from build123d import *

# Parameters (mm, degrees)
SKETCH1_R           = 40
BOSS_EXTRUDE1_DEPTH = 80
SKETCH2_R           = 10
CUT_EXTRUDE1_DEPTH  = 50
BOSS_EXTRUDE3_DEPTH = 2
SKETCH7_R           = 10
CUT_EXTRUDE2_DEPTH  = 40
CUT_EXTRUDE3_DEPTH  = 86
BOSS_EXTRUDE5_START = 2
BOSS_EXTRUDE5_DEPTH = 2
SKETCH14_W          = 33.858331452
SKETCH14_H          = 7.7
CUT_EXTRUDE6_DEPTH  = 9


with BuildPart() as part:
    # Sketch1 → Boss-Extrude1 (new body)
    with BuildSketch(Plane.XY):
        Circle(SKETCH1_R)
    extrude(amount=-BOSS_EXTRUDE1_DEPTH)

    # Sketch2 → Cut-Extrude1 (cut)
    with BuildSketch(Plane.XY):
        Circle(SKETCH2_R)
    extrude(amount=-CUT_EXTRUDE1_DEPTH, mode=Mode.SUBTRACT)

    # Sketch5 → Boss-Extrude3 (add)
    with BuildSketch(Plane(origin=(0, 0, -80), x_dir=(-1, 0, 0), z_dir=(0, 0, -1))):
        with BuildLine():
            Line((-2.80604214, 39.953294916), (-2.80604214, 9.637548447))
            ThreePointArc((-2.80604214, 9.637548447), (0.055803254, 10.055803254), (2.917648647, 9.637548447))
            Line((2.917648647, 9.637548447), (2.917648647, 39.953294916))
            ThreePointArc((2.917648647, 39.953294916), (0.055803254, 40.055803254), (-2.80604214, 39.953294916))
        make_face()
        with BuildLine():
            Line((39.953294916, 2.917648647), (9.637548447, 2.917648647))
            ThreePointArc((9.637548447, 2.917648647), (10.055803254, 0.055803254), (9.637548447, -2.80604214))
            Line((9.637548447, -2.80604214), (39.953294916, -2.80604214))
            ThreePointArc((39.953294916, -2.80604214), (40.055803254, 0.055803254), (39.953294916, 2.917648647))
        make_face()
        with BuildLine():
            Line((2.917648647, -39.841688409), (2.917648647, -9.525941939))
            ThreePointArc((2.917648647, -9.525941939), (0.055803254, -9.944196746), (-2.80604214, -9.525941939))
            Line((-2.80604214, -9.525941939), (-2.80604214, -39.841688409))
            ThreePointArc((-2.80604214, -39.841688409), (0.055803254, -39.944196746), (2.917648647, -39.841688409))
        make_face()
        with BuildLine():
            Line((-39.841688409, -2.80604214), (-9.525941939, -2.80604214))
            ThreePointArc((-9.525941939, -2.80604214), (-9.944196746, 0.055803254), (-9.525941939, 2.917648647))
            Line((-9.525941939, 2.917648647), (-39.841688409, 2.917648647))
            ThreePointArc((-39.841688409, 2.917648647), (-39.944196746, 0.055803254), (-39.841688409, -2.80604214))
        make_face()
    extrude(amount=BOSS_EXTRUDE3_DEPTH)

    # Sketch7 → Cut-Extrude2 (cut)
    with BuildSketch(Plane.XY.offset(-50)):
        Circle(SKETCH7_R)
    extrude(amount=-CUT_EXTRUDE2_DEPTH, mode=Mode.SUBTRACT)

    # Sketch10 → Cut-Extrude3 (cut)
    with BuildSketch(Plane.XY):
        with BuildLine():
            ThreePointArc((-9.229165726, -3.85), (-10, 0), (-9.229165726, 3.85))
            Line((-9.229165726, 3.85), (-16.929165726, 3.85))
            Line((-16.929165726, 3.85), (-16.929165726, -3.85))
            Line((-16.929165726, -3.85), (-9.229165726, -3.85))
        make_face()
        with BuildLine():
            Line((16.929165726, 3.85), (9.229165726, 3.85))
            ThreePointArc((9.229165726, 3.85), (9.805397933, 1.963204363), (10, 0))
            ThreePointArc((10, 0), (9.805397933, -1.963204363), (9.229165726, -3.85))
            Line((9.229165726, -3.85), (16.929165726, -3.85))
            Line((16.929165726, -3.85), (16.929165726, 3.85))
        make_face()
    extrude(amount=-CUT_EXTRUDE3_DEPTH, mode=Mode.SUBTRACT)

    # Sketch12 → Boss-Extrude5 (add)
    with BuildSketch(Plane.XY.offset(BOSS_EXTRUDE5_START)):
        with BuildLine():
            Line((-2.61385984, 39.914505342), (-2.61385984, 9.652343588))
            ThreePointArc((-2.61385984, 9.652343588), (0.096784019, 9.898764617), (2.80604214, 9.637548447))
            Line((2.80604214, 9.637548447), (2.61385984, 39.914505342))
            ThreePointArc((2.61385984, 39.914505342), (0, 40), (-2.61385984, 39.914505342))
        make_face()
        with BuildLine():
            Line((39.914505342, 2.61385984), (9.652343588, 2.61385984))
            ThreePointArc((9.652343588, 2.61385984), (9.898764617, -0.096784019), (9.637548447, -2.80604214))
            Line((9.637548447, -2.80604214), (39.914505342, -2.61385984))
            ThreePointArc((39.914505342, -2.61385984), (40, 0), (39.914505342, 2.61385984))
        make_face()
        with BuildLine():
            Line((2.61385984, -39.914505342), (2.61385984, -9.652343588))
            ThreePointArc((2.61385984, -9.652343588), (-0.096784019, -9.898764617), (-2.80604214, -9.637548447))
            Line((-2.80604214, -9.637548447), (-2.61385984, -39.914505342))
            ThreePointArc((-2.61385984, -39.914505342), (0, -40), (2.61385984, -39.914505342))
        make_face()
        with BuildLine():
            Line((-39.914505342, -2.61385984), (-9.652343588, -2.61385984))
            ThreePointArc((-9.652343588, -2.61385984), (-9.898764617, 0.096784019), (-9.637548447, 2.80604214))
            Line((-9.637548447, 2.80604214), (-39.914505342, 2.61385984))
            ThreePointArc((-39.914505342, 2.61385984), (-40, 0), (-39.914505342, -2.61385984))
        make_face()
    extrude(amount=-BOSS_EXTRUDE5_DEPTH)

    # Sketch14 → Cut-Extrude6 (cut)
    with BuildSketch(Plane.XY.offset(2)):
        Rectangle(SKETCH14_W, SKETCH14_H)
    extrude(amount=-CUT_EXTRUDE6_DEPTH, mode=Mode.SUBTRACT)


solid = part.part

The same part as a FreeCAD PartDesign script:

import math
import FreeCAD as App
import Part
import Sketcher
from FreeCAD import Vector
Q = App.Units.Quantity


def add_polygon(sketch, points):
    """Adds a closed chain of lines whose ends are joined by coincident constraints."""
    first, n = sketch.GeometryCount, len(points)
    for a, b in zip(points, points[1:] + points[:1]):
        sketch.addGeometry(Part.LineSegment(App.Vector(*a, 0), App.Vector(*b, 0)), False)
    for i in range(n):
        sketch.addConstraint(Sketcher.Constraint("Coincident", first + i, 2, first + (i + 1) % n, 1))

doc = App.newDocument("Part")
body = doc.addObject("PartDesign::Body", "Body")

# Sketch on XY plane
sketch1 = body.newObject("Sketcher::SketchObject", "Sketch")
sketch1.AttachmentSupport = (doc.getObject("XY_Plane"), [""])
sketch1.MapMode = "FlatFace"
sketch1.addGeometry(Part.Circle(Vector(0, 0, 0), Vector(0, 0, 1), 40), False)
sketch1.addConstraint(Sketcher.Constraint("Coincident", 0, 3, -1, 1))
sketch1.addConstraint(Sketcher.Constraint("Diameter", 0, Q("80 mm")))
pad1 = body.newObject("PartDesign::Pad", "Pad")
pad1.Profile = sketch1
pad1.Length = 80
pad1.Reversed = True

# Sketch on XY plane
sketch2 = body.newObject("Sketcher::SketchObject", "Sketch001")
sketch2.AttachmentSupport = (doc.getObject("XY_Plane"), [""])
sketch2.MapMode = "FlatFace"
sketch2.addGeometry(Part.Circle(Vector(0, 0, 0), Vector(0, 0, 1), 10), False)
sketch2.addConstraint(Sketcher.Constraint("Coincident", 0, 3, -1, 1))
sketch2.addConstraint(Sketcher.Constraint("Diameter", 0, Q("20 mm")))
pocket1 = body.newObject("PartDesign::Pocket", "Pocket")
pocket1.Profile = sketch2
pocket1.Length = 50

# Sketch on XY plane
sketch3 = body.newObject("Sketcher::SketchObject", "Sketch002")
sketch3.AttachmentSupport = (doc.getObject("XY_Plane"), [""])
sketch3.MapMode = "FlatFace"
sketch3.AttachmentOffset = App.Placement(Vector(0, 0, -80), App.Rotation())
sketch3.addGeometry(Part.LineSegment(Vector(3, 40, 0), Vector(3, 10, 0)), False)
sketch3.addGeometry(Part.ArcOfCircle(Part.Circle(Vector(0, 0, 0), Vector(0, 0, 1), 10), math.radians(73), math.radians(107)), False)
sketch3.addGeometry(Part.LineSegment(Vector(-3, 10, 0), Vector(-3, 40, 0)), False)
sketch3.addGeometry(Part.ArcOfCircle(Part.Circle(Vector(0, 0, 0), Vector(0, 0, 1), 40), math.radians(85.9), math.radians(94.1)), False)
sketch3.addGeometry(Part.LineSegment(Vector(-40, 3, 0), Vector(-10, 3, 0)), False)
sketch3.addGeometry(Part.ArcOfCircle(Part.Circle(Vector(0, 0, 0), Vector(0, 0, 1), 10), math.radians(163), math.radians(197)), False)
sketch3.addGeometry(Part.LineSegment(Vector(-10, -3, 0), Vector(-40, -3, 0)), False)
sketch3.addGeometry(Part.ArcOfCircle(Part.Circle(Vector(0, 0, 0), Vector(0, 0, 1), 40), math.radians(175.9), math.radians(184.1)), False)
sketch3.addGeometry(Part.LineSegment(Vector(-3, -40, 0), Vector(-3, -10, 0)), False)
sketch3.addGeometry(Part.ArcOfCircle(Part.Circle(Vector(0, 0, 0), Vector(0, 0, 1), 10), math.radians(-107), math.radians(-73)), False)
sketch3.addGeometry(Part.LineSegment(Vector(3, -10, 0), Vector(3, -40, 0)), False)
sketch3.addGeometry(Part.ArcOfCircle(Part.Circle(Vector(0, 0, 0), Vector(0, 0, 1), 40), math.radians(-94.1), math.radians(-85.9)), False)
sketch3.addGeometry(Part.LineSegment(Vector(40, -3, 0), Vector(10, -3, 0)), False)
sketch3.addGeometry(Part.ArcOfCircle(Part.Circle(Vector(0, 0, 0), Vector(0, 0, 1), 10), math.radians(-17), math.radians(17)), False)
sketch3.addGeometry(Part.LineSegment(Vector(10, 3, 0), Vector(40, 3, 0)), False)
sketch3.addGeometry(Part.ArcOfCircle(Part.Circle(Vector(0, 0, 0), Vector(0, 0, 1), 40), math.radians(-4.1), math.radians(4.1)), False)
sketch3.addConstraint(Sketcher.Constraint("Coincident", 0, 2, 1, 1))
sketch3.addConstraint(Sketcher.Constraint("Coincident", 1, 2, 2, 1))
sketch3.addConstraint(Sketcher.Constraint("Coincident", 2, 2, 3, 2))
sketch3.addConstraint(Sketcher.Constraint("Coincident", 3, 1, 0, 1))
sketch3.addConstraint(Sketcher.Constraint("Coincident", 4, 2, 5, 1))
sketch3.addConstraint(Sketcher.Constraint("Coincident", 5, 2, 6, 1))
sketch3.addConstraint(Sketcher.Constraint("Coincident", 6, 2, 7, 2))
sketch3.addConstraint(Sketcher.Constraint("Coincident", 7, 1, 4, 1))
sketch3.addConstraint(Sketcher.Constraint("Coincident", 8, 2, 9, 1))
sketch3.addConstraint(Sketcher.Constraint("Coincident", 9, 2, 10, 1))
sketch3.addConstraint(Sketcher.Constraint("Coincident", 10, 2, 11, 2))
sketch3.addConstraint(Sketcher.Constraint("Coincident", 11, 1, 8, 1))
sketch3.addConstraint(Sketcher.Constraint("Coincident", 12, 2, 13, 1))
sketch3.addConstraint(Sketcher.Constraint("Coincident", 13, 2, 14, 1))
sketch3.addConstraint(Sketcher.Constraint("Coincident", 14, 2, 15, 2))
sketch3.addConstraint(Sketcher.Constraint("Coincident", 15, 1, 12, 1))
sketch3.addConstraint(Sketcher.Constraint("Vertical", 0))
sketch3.addConstraint(Sketcher.Constraint("Vertical", 2))
sketch3.addConstraint(Sketcher.Constraint("Horizontal", 4))
sketch3.addConstraint(Sketcher.Constraint("Horizontal", 6))
sketch3.addConstraint(Sketcher.Constraint("Vertical", 8))
sketch3.addConstraint(Sketcher.Constraint("Vertical", 10))
sketch3.addConstraint(Sketcher.Constraint("Horizontal", 12))
sketch3.addConstraint(Sketcher.Constraint("Horizontal", 14))
sketch3.addConstraint(Sketcher.Constraint("Coincident", 3, 3, 1, 3))
sketch3.addConstraint(Sketcher.Constraint("Coincident", 5, 3, 1, 3))
sketch3.addConstraint(Sketcher.Constraint("Coincident", 7, 3, 1, 3))
sketch3.addConstraint(Sketcher.Constraint("Coincident", 9, 3, 1, 3))
sketch3.addConstraint(Sketcher.Constraint("Coincident", 11, 3, 1, 3))
sketch3.addConstraint(Sketcher.Constraint("Coincident", 13, 3, 1, 3))
sketch3.addConstraint(Sketcher.Constraint("Coincident", 15, 3, 1, 3))
sketch3.addConstraint(Sketcher.Constraint("Equal", 1, 5))
sketch3.addConstraint(Sketcher.Constraint("Equal", 3, 7))
sketch3.addConstraint(Sketcher.Constraint("Equal", 5, 9))
sketch3.addConstraint(Sketcher.Constraint("Equal", 7, 11))
sketch3.addConstraint(Sketcher.Constraint("Equal", 9, 13))
sketch3.addConstraint(Sketcher.Constraint("Equal", 11, 15))
sketch3.addConstraint(Sketcher.Constraint("Horizontal", 0, 2, 1, 2))
sketch3.addConstraint(Sketcher.Constraint("Horizontal", 8, 2, 9, 2))
sketch3.addConstraint(Sketcher.Constraint("Horizontal", 6, 2, 12, 2))
sketch3.addConstraint(Sketcher.Constraint("Horizontal", 7, 1, 13, 2))
sketch3.addConstraint(Sketcher.Constraint("Vertical", 4, 2, 5, 2))
sketch3.addConstraint(Sketcher.Constraint("Vertical", 2, 2, 8, 2))
sketch3.addConstraint(Sketcher.Constraint("Equal", 14, 0))
sketch3.addConstraint(Sketcher.Constraint("Radius", 1, Q("10 mm")))
sketch3.addConstraint(Sketcher.Constraint("Radius", 3, Q("40 mm")))
sketch3.addConstraint(Sketcher.Constraint("DistanceX", 4, 2, 1, 2, Q("6.7199 mm")))
sketch3.addConstraint(Sketcher.Constraint("DistanceY", -1, 1, 0, 2, Q("9.637548 mm")))
sketch3.addConstraint(Sketcher.Constraint("DistanceX", 1, 2, -1, 1, Q("2.917649 mm")))
pad2 = body.newObject("PartDesign::Pad", "Pad001")
pad2.Profile = sketch3
pad2.Length = 2
pad2.Reversed = True

# Sketch on XY plane
sketch4 = body.newObject("Sketcher::SketchObject", "Sketch003")
sketch4.AttachmentSupport = (doc.getObject("XY_Plane"), [""])
sketch4.MapMode = "FlatFace"
sketch4.AttachmentOffset = App.Placement(Vector(0, 0, -50), App.Rotation())
sketch4.addGeometry(Part.Circle(Vector(0, 0, 0), Vector(0, 0, 1), 10), False)
sketch4.addConstraint(Sketcher.Constraint("Coincident", 0, 3, -1, 1))
sketch4.addConstraint(Sketcher.Constraint("Diameter", 0, Q("20 mm")))
pocket2 = body.newObject("PartDesign::Pocket", "Pocket001")
pocket2.Profile = sketch4
pocket2.Length = 40

# Sketch on XY plane
sketch5 = body.newObject("Sketcher::SketchObject", "Sketch004")
sketch5.AttachmentSupport = (doc.getObject("XY_Plane"), [""])
sketch5.MapMode = "FlatFace"
sketch5.addGeometry(Part.ArcOfCircle(Part.Circle(Vector(0, 0, 0), Vector(0, 0, 1), 10), math.radians(157), math.radians(203)), False)
sketch5.addGeometry(Part.LineSegment(Vector(-9.2, 3.9, 0), Vector(-16.9, 3.9, 0)), False)
sketch5.addGeometry(Part.LineSegment(Vector(-16.9, 3.9, 0), Vector(-16.9, -3.9, 0)), False)
sketch5.addGeometry(Part.LineSegment(Vector(-16.9, -3.9, 0), Vector(-9.2, -3.9, 0)), False)
sketch5.addGeometry(Part.LineSegment(Vector(16.9, 3.9, 0), Vector(9.2, 3.9, 0)), False)
sketch5.addGeometry(Part.ArcOfCircle(Part.Circle(Vector(0, 0, 0), Vector(0, 0, 1), 10), math.radians(0), math.radians(23)), False)
sketch5.addGeometry(Part.ArcOfCircle(Part.Circle(Vector(0, 0, 0), Vector(0, 0, 1), 10), math.radians(-23), math.radians(0)), False)
sketch5.addGeometry(Part.LineSegment(Vector(9.2, -3.9, 0), Vector(16.9, -3.9, 0)), False)
sketch5.addGeometry(Part.LineSegment(Vector(16.9, -3.9, 0), Vector(16.9, 3.9, 0)), False)
sketch5.addConstraint(Sketcher.Constraint("Coincident", 0, 1, 1, 1))
sketch5.addConstraint(Sketcher.Constraint("Coincident", 1, 2, 2, 1))
sketch5.addConstraint(Sketcher.Constraint("Coincident", 2, 2, 3, 1))
sketch5.addConstraint(Sketcher.Constraint("Coincident", 3, 2, 0, 2))
sketch5.addConstraint(Sketcher.Constraint("Coincident", 4, 2, 5, 2))
sketch5.addConstraint(Sketcher.Constraint("Tangent", 5, 1, 6, 2))
sketch5.addConstraint(Sketcher.Constraint("Coincident", 6, 1, 7, 1))
sketch5.addConstraint(Sketcher.Constraint("Coincident", 7, 2, 8, 1))
sketch5.addConstraint(Sketcher.Constraint("Coincident", 8, 2, 4, 1))
sketch5.addConstraint(Sketcher.Constraint("Horizontal", 1))
sketch5.addConstraint(Sketcher.Constraint("Vertical", 2))
sketch5.addConstraint(Sketcher.Constraint("Horizontal", 3))
sketch5.addConstraint(Sketcher.Constraint("Horizontal", 4))
sketch5.addConstraint(Sketcher.Constraint("Horizontal", 7))
sketch5.addConstraint(Sketcher.Constraint("Vertical", 8))
sketch5.addConstraint(Sketcher.Constraint("Coincident", 0, 3, -1, 1))
sketch5.addConstraint(Sketcher.Constraint("Coincident", 5, 3, -1, 1))
sketch5.addConstraint(Sketcher.Constraint("Equal", 0, 5))
sketch5.addConstraint(Sketcher.Constraint("Equal", 5, 6))
sketch5.addConstraint(Sketcher.Constraint("Symmetric", 1, 2, 7, 2, -1, 1))
sketch5.addConstraint(Sketcher.Constraint("PointOnObject", 5, 1, -1))
sketch5.addConstraint(Sketcher.Constraint("Horizontal", 1, 2, 4, 2))
sketch5.addConstraint(Sketcher.Constraint("Horizontal", 3, 2, 6, 1))
sketch5.addConstraint(Sketcher.Constraint("Equal", 7, 2))
sketch5.addConstraint(Sketcher.Constraint("Radius", 0, Q("10 mm")))
sketch5.addConstraint(Sketcher.Constraint("DistanceX", 1, 2, 1, 1, Q("7.7 mm")))
pocket3 = body.newObject("PartDesign::Pocket", "Pocket002")
pocket3.Profile = sketch5
pocket3.Length = 86

# Sketch on XY plane
sketch6 = body.newObject("Sketcher::SketchObject", "Sketch005")
sketch6.AttachmentSupport = (doc.getObject("XY_Plane"), [""])
sketch6.MapMode = "FlatFace"
sketch6.AttachmentOffset = App.Placement(Vector(0, 0, 2), App.Rotation())
sketch6.addGeometry(Part.LineSegment(Vector(-3, 40, 0), Vector(-3, 10, 0)), False)
sketch6.addGeometry(Part.ArcOfCircle(Part.Circle(Vector(0, -5, 0), Vector(0, 0, 1), 15), math.radians(79), math.radians(101)), False)
sketch6.addGeometry(Part.LineSegment(Vector(3, 10, 0), Vector(3, 40, 0)), False)
sketch6.addGeometry(Part.ArcOfCircle(Part.Circle(Vector(0, 0, 0), Vector(0, 0, 1), 40), math.radians(86.25), math.radians(93.75)), False)
sketch6.addGeometry(Part.LineSegment(Vector(40, 3, 0), Vector(10, 3, 0)), False)
sketch6.addGeometry(Part.ArcOfCircle(Part.Circle(Vector(-5, 0, 0), Vector(0, 0, 1), 15), math.radians(-11), math.radians(11)), False)
sketch6.addGeometry(Part.LineSegment(Vector(10, -3, 0), Vector(40, -3, 0)), False)
sketch6.addGeometry(Part.ArcOfCircle(Part.Circle(Vector(0, 0, 0), Vector(0, 0, 1), 40), math.radians(-3.75), math.radians(3.75)), False)
sketch6.addGeometry(Part.LineSegment(Vector(3, -40, 0), Vector(3, -10, 0)), False)
sketch6.addGeometry(Part.ArcOfCircle(Part.Circle(Vector(0, 5, 0), Vector(0, 0, 1), 15), math.radians(-101), math.radians(-79)), False)
sketch6.addGeometry(Part.LineSegment(Vector(-3, -10, 0), Vector(-3, -40, 0)), False)
sketch6.addGeometry(Part.ArcOfCircle(Part.Circle(Vector(0, 0, 0), Vector(0, 0, 1), 40), math.radians(-93.75), math.radians(-86.25)), False)
sketch6.addGeometry(Part.LineSegment(Vector(-40, -3, 0), Vector(-10, -3, 0)), False)
sketch6.addGeometry(Part.ArcOfCircle(Part.Circle(Vector(5, 0, 0), Vector(0, 0, 1), 15), math.radians(169), math.radians(191)), False)
sketch6.addGeometry(Part.LineSegment(Vector(-10, 3, 0), Vector(-40, 3, 0)), False)
sketch6.addGeometry(Part.ArcOfCircle(Part.Circle(Vector(0, 0, 0), Vector(0, 0, 1), 40), math.radians(176.25), math.radians(183.75)), False)
sketch6.addConstraint(Sketcher.Constraint("Coincident", 0, 2, 1, 2))
sketch6.addConstraint(Sketcher.Constraint("Coincident", 1, 1, 2, 1))
sketch6.addConstraint(Sketcher.Constraint("Coincident", 2, 2, 3, 1))
sketch6.addConstraint(Sketcher.Constraint("Coincident", 3, 2, 0, 1))
sketch6.addConstraint(Sketcher.Constraint("Coincident", 4, 2, 5, 2))
sketch6.addConstraint(Sketcher.Constraint("Coincident", 5, 1, 6, 1))
sketch6.addConstraint(Sketcher.Constraint("Coincident", 6, 2, 7, 1))
sketch6.addConstraint(Sketcher.Constraint("Coincident", 7, 2, 4, 1))
sketch6.addConstraint(Sketcher.Constraint("Coincident", 8, 2, 9, 2))
sketch6.addConstraint(Sketcher.Constraint("Coincident", 9, 1, 10, 1))
sketch6.addConstraint(Sketcher.Constraint("Coincident", 10, 2, 11, 1))
sketch6.addConstraint(Sketcher.Constraint("Coincident", 11, 2, 8, 1))
sketch6.addConstraint(Sketcher.Constraint("Coincident", 12, 2, 13, 2))
sketch6.addConstraint(Sketcher.Constraint("Coincident", 13, 1, 14, 1))
sketch6.addConstraint(Sketcher.Constraint("Coincident", 14, 2, 15, 1))
sketch6.addConstraint(Sketcher.Constraint("Coincident", 15, 2, 12, 1))
sketch6.addConstraint(Sketcher.Constraint("Vertical", 0))
sketch6.addConstraint(Sketcher.Constraint("Horizontal", 4))
sketch6.addConstraint(Sketcher.Constraint("Vertical", 8))
sketch6.addConstraint(Sketcher.Constraint("Horizontal", 12))
sketch6.addConstraint(Sketcher.Constraint("Coincident", 3, 3, -1, 1))
sketch6.addConstraint(Sketcher.Constraint("Coincident", 7, 3, -1, 1))
sketch6.addConstraint(Sketcher.Constraint("Coincident", 11, 3, -1, 1))
sketch6.addConstraint(Sketcher.Constraint("Coincident", 15, 3, -1, 1))
sketch6.addConstraint(Sketcher.Constraint("Equal", 1, 5))
sketch6.addConstraint(Sketcher.Constraint("Equal", 3, 7))
sketch6.addConstraint(Sketcher.Constraint("Equal", 5, 9))
sketch6.addConstraint(Sketcher.Constraint("Equal", 7, 11))
sketch6.addConstraint(Sketcher.Constraint("Equal", 9, 13))
sketch6.addConstraint(Sketcher.Constraint("Equal", 11, 15))
sketch6.addConstraint(Sketcher.Constraint("Symmetric", 1, 3, 9, 3, -1, 1))
sketch6.addConstraint(Sketcher.Constraint("Symmetric", 5, 3, 13, 3, -1, 1))
sketch6.addConstraint(Sketcher.Constraint("Perpendicular", 2, 6))
sketch6.addConstraint(Sketcher.Constraint("Perpendicular", 6, 10))
sketch6.addConstraint(Sketcher.Constraint("Perpendicular", 10, 14))
sketch6.addConstraint(Sketcher.Constraint("Horizontal", 2, 2, 3, 2))
sketch6.addConstraint(Sketcher.Constraint("Horizontal", 10, 2, 11, 2))
sketch6.addConstraint(Sketcher.Constraint("Horizontal", 6, 2, 12, 2))
sketch6.addConstraint(Sketcher.Constraint("Horizontal", 7, 2, 14, 2))
sketch6.addConstraint(Sketcher.Constraint("Vertical", 6, 2, 7, 2))
sketch6.addConstraint(Sketcher.Constraint("Vertical", 2, 2, 8, 2))
sketch6.addConstraint(Sketcher.Constraint("Equal", 12, 0))
sketch6.addConstraint(Sketcher.Constraint("Equal", 2, 6))
sketch6.addConstraint(Sketcher.Constraint("Radius", 3, Q("40 mm")))
sketch6.addConstraint(Sketcher.Constraint("Radius", 1, Q("14.593662 mm")))
sketch6.addConstraint(Sketcher.Constraint("DistanceX", 4, 2, 4, 1, Q("30.262162 mm")))
sketch6.addConstraint(Sketcher.Constraint("DistanceY", 9, 3, 0, 2, Q("4.9575 mm")))
sketch6.addConstraint(Sketcher.Constraint("DistanceX", 0, 2, 1, 1, Q("5.419902 mm")))
sketch6.addConstraint(Sketcher.Constraint("DistanceX", 1, 1, 13, 3, Q("1.888801 mm")))
sketch6.addConstraint(Sketcher.Constraint("DistanceY", 13, 3, 1, 1, Q("9.580602 mm")))
pad3 = body.newObject("PartDesign::Pad", "Pad002")
pad3.Profile = sketch6
pad3.Length = 2
pad3.Reversed = True

# Sketch on XY plane
sketch7 = body.newObject("Sketcher::SketchObject", "Sketch006")
sketch7.AttachmentSupport = (doc.getObject("XY_Plane"), [""])
sketch7.MapMode = "FlatFace"
sketch7.AttachmentOffset = App.Placement(Vector(0, 0, 2), App.Rotation())
add_polygon(sketch7, [(-17, 4), (-17, -4), (17, -4), (17, 4)])  # lines 0-3
sketch7.addConstraint(Sketcher.Constraint("Vertical", 0))
sketch7.addConstraint(Sketcher.Constraint("Horizontal", 1))
sketch7.addConstraint(Sketcher.Constraint("Vertical", 2))
sketch7.addConstraint(Sketcher.Constraint("Horizontal", 3))
sketch7.addConstraint(Sketcher.Constraint("Symmetric", 0, 2, 2, 2, -1, 1))
sketch7.addConstraint(Sketcher.Constraint("DistanceY", 0, 2, 0, 1, Q("7.7 mm")))
sketch7.addConstraint(Sketcher.Constraint("DistanceX", 1, 1, 1, 2, Q("33.858331 mm")))
pocket4 = body.newObject("PartDesign::Pocket", "Pocket003")
pocket4.Profile = sketch7
pocket4.Length = 9

doc.recompute()
